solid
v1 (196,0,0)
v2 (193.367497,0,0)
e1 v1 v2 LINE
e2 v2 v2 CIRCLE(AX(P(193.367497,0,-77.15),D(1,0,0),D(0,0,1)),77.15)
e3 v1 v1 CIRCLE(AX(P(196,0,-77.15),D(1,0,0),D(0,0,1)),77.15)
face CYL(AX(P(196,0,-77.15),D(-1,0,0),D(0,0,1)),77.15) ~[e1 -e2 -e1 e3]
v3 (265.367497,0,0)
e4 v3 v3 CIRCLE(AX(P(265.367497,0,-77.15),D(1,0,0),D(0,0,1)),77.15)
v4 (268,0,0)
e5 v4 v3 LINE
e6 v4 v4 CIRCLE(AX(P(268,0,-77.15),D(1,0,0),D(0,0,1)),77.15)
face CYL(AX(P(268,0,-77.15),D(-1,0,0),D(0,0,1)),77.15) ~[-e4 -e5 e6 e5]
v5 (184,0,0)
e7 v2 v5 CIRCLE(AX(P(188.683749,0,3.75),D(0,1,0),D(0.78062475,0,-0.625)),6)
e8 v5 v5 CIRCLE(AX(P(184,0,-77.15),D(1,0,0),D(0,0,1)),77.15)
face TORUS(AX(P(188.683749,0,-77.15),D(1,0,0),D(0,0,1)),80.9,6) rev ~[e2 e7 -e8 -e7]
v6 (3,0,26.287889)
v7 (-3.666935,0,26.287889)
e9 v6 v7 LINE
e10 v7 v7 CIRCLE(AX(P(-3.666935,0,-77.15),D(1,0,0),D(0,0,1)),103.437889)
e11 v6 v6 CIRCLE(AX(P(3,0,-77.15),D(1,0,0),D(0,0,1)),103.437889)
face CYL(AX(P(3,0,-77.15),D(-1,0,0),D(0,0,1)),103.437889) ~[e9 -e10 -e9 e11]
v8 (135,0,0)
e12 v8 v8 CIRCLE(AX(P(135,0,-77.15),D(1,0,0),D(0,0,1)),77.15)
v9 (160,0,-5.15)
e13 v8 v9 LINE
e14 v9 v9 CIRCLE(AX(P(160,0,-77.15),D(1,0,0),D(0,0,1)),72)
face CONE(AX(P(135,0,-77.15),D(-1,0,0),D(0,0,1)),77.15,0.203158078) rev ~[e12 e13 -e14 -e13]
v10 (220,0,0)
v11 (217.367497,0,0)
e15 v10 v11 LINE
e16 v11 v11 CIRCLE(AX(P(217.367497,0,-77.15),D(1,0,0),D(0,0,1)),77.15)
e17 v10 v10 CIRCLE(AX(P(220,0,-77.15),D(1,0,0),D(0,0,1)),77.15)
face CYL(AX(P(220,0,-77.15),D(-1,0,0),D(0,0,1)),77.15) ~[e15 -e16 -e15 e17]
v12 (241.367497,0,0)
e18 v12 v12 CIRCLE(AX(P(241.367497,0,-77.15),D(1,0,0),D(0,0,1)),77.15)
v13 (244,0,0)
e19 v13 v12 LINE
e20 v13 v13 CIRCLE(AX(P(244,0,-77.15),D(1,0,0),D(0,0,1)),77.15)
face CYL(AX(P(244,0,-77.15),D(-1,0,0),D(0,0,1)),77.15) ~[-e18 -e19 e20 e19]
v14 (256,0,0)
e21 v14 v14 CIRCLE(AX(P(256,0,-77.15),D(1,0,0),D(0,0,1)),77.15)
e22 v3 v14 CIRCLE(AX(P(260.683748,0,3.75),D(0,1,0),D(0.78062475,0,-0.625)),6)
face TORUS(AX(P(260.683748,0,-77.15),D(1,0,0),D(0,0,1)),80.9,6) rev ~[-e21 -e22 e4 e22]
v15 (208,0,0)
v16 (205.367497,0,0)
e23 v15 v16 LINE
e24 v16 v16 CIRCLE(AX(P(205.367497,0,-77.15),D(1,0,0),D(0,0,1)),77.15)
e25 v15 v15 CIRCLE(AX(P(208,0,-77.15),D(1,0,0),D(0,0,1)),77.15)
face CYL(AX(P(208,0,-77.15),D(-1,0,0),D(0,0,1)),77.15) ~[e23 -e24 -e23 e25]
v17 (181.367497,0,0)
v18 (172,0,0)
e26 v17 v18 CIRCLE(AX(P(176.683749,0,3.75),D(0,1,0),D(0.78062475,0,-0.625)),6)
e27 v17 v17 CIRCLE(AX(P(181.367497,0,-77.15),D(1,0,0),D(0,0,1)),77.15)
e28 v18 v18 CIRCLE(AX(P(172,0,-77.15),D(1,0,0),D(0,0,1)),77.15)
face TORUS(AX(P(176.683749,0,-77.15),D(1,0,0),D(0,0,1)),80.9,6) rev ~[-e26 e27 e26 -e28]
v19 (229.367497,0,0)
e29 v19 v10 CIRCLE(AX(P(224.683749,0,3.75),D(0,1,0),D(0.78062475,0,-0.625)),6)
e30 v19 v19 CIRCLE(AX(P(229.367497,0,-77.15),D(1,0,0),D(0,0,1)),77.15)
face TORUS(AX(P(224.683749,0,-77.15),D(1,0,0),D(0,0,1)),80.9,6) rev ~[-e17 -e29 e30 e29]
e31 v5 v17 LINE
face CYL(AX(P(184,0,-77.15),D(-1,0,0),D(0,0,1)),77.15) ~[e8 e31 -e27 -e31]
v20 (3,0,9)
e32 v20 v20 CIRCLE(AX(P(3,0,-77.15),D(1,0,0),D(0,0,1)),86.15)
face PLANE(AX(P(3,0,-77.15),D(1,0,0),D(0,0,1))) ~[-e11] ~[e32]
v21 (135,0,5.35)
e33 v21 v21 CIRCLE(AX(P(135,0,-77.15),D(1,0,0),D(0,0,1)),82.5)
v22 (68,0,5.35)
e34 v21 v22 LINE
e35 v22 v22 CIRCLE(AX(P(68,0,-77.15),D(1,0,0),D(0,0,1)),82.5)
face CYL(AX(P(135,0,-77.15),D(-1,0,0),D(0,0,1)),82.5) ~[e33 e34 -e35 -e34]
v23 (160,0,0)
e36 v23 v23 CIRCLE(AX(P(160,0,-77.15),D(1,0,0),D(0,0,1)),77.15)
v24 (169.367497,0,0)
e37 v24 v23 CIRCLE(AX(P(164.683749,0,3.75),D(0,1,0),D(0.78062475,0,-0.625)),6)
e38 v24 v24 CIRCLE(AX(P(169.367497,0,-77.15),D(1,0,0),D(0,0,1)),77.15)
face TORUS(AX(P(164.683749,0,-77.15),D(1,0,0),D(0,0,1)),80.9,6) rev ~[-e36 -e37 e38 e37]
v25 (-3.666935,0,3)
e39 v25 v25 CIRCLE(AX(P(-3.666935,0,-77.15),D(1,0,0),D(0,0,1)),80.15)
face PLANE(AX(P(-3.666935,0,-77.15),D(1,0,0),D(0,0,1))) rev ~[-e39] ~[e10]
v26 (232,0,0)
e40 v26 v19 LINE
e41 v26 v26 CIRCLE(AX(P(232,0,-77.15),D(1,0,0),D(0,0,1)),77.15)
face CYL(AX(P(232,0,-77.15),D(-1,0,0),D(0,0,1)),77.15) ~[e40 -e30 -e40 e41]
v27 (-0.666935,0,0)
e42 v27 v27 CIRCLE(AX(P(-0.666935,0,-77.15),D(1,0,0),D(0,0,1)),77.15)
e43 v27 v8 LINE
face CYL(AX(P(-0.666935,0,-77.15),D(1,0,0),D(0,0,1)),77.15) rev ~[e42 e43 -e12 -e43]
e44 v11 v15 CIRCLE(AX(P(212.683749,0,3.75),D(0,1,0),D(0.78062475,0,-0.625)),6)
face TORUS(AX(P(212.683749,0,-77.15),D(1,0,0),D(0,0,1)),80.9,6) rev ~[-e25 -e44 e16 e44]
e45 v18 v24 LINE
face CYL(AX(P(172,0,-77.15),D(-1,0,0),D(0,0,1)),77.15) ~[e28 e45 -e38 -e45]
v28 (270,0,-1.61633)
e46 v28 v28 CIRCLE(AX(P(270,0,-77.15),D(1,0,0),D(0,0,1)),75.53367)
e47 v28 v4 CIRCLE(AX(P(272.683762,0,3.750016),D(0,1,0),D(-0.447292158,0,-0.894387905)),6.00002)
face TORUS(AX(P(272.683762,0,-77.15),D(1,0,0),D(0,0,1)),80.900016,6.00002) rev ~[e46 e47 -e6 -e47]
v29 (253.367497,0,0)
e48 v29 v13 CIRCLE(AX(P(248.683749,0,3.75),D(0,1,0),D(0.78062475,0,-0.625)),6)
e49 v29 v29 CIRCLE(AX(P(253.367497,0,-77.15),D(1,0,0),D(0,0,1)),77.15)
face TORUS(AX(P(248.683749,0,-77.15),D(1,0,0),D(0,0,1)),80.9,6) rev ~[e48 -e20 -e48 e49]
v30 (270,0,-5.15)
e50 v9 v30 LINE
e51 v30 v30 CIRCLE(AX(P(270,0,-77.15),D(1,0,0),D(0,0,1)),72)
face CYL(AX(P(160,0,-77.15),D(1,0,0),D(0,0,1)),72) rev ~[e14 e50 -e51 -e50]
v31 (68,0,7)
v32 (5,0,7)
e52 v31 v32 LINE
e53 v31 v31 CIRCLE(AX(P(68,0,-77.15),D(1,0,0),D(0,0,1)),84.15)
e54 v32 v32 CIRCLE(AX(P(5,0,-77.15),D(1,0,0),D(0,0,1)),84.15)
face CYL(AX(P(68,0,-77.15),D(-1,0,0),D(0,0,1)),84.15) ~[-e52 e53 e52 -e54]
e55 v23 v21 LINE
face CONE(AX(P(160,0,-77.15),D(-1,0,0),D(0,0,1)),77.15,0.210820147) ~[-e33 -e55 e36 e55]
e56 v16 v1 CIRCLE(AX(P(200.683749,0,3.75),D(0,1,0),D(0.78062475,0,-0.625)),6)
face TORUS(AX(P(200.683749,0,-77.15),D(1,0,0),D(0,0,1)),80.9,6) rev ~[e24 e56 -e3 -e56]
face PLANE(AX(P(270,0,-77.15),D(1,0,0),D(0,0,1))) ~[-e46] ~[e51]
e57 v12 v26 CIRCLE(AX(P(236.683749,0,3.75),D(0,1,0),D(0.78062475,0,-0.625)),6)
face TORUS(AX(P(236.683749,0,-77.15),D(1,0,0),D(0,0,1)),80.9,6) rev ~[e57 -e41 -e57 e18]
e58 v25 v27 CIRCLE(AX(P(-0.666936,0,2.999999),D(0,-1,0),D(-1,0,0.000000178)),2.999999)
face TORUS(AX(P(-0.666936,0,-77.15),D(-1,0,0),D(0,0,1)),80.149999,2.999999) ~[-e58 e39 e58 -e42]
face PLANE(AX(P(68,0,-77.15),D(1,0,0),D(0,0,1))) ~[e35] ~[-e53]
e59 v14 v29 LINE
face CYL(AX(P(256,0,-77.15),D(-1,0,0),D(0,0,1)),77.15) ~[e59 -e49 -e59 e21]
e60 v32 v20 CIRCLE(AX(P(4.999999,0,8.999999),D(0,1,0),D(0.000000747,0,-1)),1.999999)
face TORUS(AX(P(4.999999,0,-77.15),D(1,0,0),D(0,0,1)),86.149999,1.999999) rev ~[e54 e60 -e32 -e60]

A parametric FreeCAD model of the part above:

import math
import FreeCAD as App
import Part
import Sketcher
Q = App.Units.Quantity

doc = App.newDocument("Part")
body = doc.addObject("PartDesign::Body", "Body")

# Sketch on XZ plane
sketch1 = doc.addObject("Sketcher::SketchObject", "Sketch")
body.addObject(sketch1)
sketch1.AttachmentSupport = (doc.XZ_Plane, [""])
sketch1.MapMode = "FlatFace"
sketch1.addGeometry([
    Part.LineSegment(App.Vector(-0.7, 0, 0), App.Vector(135, 0, 0)),  # 0
    Part.LineSegment(App.Vector(135, 0, 0), App.Vector(160, -5.2, 0)),  # 1
    Part.LineSegment(App.Vector(160, -5.2, 0), App.Vector(270, -5.2, 0)),  # 2
    Part.LineSegment(App.Vector(270, -5.2, 0), App.Vector(270, -1.6, 0)),  # 3
    Part.ArcOfCircle(Part.Circle(App.Vector(272.7, 3.8, 0), App.Vector(0, 0, 1), 6), math.radians(-141), math.radians(-117)),  # 4
    Part.LineSegment(App.Vector(268, 0, 0), App.Vector(265.4, 0, 0)),  # 5
    Part.ArcOfCircle(Part.Circle(App.Vector(260.7, 3.8, 0), App.Vector(0, 0, 1), 6), math.radians(-141), math.radians(-39)),  # 6
    Part.LineSegment(App.Vector(256, 0, 0), App.Vector(253.4, 0, 0)),  # 7
    Part.ArcOfCircle(Part.Circle(App.Vector(248.7, 3.8, 0), App.Vector(0, 0, 1), 6), math.radians(-141), math.radians(-39)),  # 8
    Part.LineSegment(App.Vector(244, 0, 0), App.Vector(241.4, 0, 0)),  # 9
    Part.ArcOfCircle(Part.Circle(App.Vector(236.7, 3.8, 0), App.Vector(0, 0, 1), 6), math.radians(-141), math.radians(-39)),  # 10
    Part.LineSegment(App.Vector(232, 0, 0), App.Vector(229.4, 0, 0)),  # 11
    Part.ArcOfCircle(Part.Circle(App.Vector(224.7, 3.8, 0), App.Vector(0, 0, 1), 6), math.radians(-141), math.radians(-39)),  # 12
    Part.LineSegment(App.Vector(220, 0, 0), App.Vector(217.4, 0, 0)),  # 13
    Part.ArcOfCircle(Part.Circle(App.Vector(212.7, 3.8, 0), App.Vector(0, 0, 1), 6), math.radians(-141), math.radians(-39)),  # 14
    Part.LineSegment(App.Vector(208, 0, 0), App.Vector(205.4, 0, 0)),  # 15
    Part.ArcOfCircle(Part.Circle(App.Vector(200.7, 3.8, 0), App.Vector(0, 0, 1), 6), math.radians(-141), math.radians(-39)),  # 16
    Part.LineSegment(App.Vector(196, 0, 0), App.Vector(193.4, 0, 0)),  # 17
    Part.ArcOfCircle(Part.Circle(App.Vector(188.7, 3.8, 0), App.Vector(0, 0, 1), 6), math.radians(-141), math.radians(-39)),  # 18
    Part.LineSegment(App.Vector(184, 0, 0), App.Vector(181.4, 0, 0)),  # 19
    Part.ArcOfCircle(Part.Circle(App.Vector(176.7, 3.8, 0), App.Vector(0, 0, 1), 6), math.radians(-141), math.radians(-39)),  # 20
    Part.LineSegment(App.Vector(172, 0, 0), App.Vector(169.4, 0, 0)),  # 21
    Part.ArcOfCircle(Part.Circle(App.Vector(164.7, 3.8, 0), App.Vector(0, 0, 1), 6), math.radians(-141), math.radians(-39)),  # 22
    Part.LineSegment(App.Vector(160, 0, 0), App.Vector(135, 5.3, 0)),  # 23
    Part.LineSegment(App.Vector(135, 5.3, 0), App.Vector(68, 5.3, 0)),  # 24
    Part.LineSegment(App.Vector(68, 5.3, 0), App.Vector(68, 7, 0)),  # 25
    Part.LineSegment(App.Vector(68, 7, 0), App.Vector(5, 7, 0)),  # 26
    Part.ArcOfCircle(Part.Circle(App.Vector(5, 9, 0), App.Vector(0, 0, 1), 2), math.radians(180), math.radians(270)),  # 27
    Part.LineSegment(App.Vector(3, 9, 0), App.Vector(3, 26.3, 0)),  # 28
    Part.LineSegment(App.Vector(3, 26.3, 0), App.Vector(-3.7, 26.3, 0)),  # 29
    Part.LineSegment(App.Vector(-3.7, 26.3, 0), App.Vector(-3.7, 3, 0)),  # 30
    Part.ArcOfCircle(Part.Circle(App.Vector(-0.7, 3, 0), App.Vector(0, 0, 1), 3), math.radians(180), math.radians(270)),  # 31
], False)
sketch1.addGeometry(Part.LineSegment(App.Vector(-3.7, -77.2, 0), App.Vector(272.7, -77.2, 0)), True)  # axis
sketch1.addConstraint([
    Sketcher.Constraint("Coincident", 0, 2, 1, 1),
    Sketcher.Constraint("Coincident", 1, 2, 2, 1),
    Sketcher.Constraint("Coincident", 2, 2, 3, 1),
    Sketcher.Constraint("Coincident", 3, 2, 4, 2),
    Sketcher.Constraint("Coincident", 4, 1, 5, 1),
    Sketcher.Constraint("Coincident", 5, 2, 6, 2),
    Sketcher.Constraint("Coincident", 6, 1, 7, 1),
    Sketcher.Constraint("Coincident", 7, 2, 8, 2),
    Sketcher.Constraint("Coincident", 8, 1, 9, 1),
    Sketcher.Constraint("Coincident", 9, 2, 10, 2),
    Sketcher.Constraint("Coincident", 10, 1, 11, 1),
    Sketcher.Constraint("Coincident", 11, 2, 12, 2),
    Sketcher.Constraint("Coincident", 12, 1, 13, 1),
    Sketcher.Constraint("Coincident", 13, 2, 14, 2),
    Sketcher.Constraint("Coincident", 14, 1, 15, 1),
    Sketcher.Constraint("Coincident", 15, 2, 16, 2),
    Sketcher.Constraint("Coincident", 16, 1, 17, 1),
    Sketcher.Constraint("Coincident", 17, 2, 18, 2),
    Sketcher.Constraint("Coincident", 18, 1, 19, 1),
    Sketcher.Constraint("Coincident", 19, 2, 20, 2),
    Sketcher.Constraint("Coincident", 20, 1, 21, 1),
    Sketcher.Constraint("Coincident", 21, 2, 22, 2),
    Sketcher.Constraint("Coincident", 22, 1, 23, 1),
    Sketcher.Constraint("Coincident", 23, 2, 24, 1),
    Sketcher.Constraint("Coincident", 24, 2, 25, 1),
    Sketcher.Constraint("Coincident", 25, 2, 26, 1),
    Sketcher.Constraint("Tangent", 26, 2, 27, 2),
    Sketcher.Constraint("Tangent", 27, 1, 28, 1),
    Sketcher.Constraint("Coincident", 28, 2, 29, 1),
    Sketcher.Constraint("Coincident", 29, 2, 30, 1),
    Sketcher.Constraint("Tangent", 30, 2, 31, 1),
    Sketcher.Constraint("Tangent", 31, 2, 0, 1),
    Sketcher.Constraint("Horizontal", 0),
    Sketcher.Constraint("Horizontal", 2),
    Sketcher.Constraint("Vertical", 3),
    Sketcher.Constraint("Horizontal", 5),
    Sketcher.Constraint("Horizontal", 7),
    Sketcher.Constraint("Horizontal", 9),
    Sketcher.Constraint("Horizontal", 11),
    Sketcher.Constraint("Horizontal", 13),
    Sketcher.Constraint("Horizontal", 15),
    Sketcher.Constraint("Horizontal", 17),
    Sketcher.Constraint("Horizontal", 19),
    Sketcher.Constraint("Horizontal", 21),
    Sketcher.Constraint("Horizontal", 24),
    Sketcher.Constraint("Vertical", 25),
    Sketcher.Constraint("Horizontal", 26),
    Sketcher.Constraint("Vertical", 28),
    Sketcher.Constraint("Horizontal", 29),
    Sketcher.Constraint("Vertical", 30),
    Sketcher.Constraint("Horizontal", 32),
    Sketcher.Constraint("Equal", 6, 8),
    Sketcher.Constraint("Equal", 8, 10),
    Sketcher.Constraint("Equal", 10, 12),
    Sketcher.Constraint("Equal", 12, 14),
    Sketcher.Constraint("Equal", 14, 16),
    Sketcher.Constraint("Equal", 16, 18),
    Sketcher.Constraint("Equal", 18, 20),
    Sketcher.Constraint("Equal", 20, 22),
    Sketcher.Constraint("PointOnObject", 0, 2, -1),
    Sketcher.Constraint("PointOnObject", 4, 1, -1),
    Sketcher.Constraint("PointOnObject", 6, 1, -1),
    Sketcher.Constraint("PointOnObject", 8, 1, -1),
    Sketcher.Constraint("PointOnObject", 10, 1, -1),
    Sketcher.Constraint("PointOnObject", 12, 1, -1),
    Sketcher.Constraint("PointOnObject", 14, 1, -1),
    Sketcher.Constraint("PointOnObject", 16, 1, -1),
    Sketcher.Constraint("PointOnObject", 18, 1, -1),
    Sketcher.Constraint("PointOnObject", 20, 1, -1),
    Sketcher.Constraint("PointOnObject", 22, 1, -1),
    Sketcher.Constraint("Horizontal", 6, 3, 8, 3),
    Sketcher.Constraint("Horizontal", 8, 3, 10, 3),
    Sketcher.Constraint("Horizontal", 10, 3, 12, 3),
    Sketcher.Constraint("Horizontal", 12, 3, 14, 3),
    Sketcher.Constraint("Horizontal", 14, 3, 16, 3),
    Sketcher.Constraint("Horizontal", 16, 3, 18, 3),
    Sketcher.Constraint("Horizontal", 18, 3, 20, 3),
    Sketcher.Constraint("Horizontal", 20, 3, 22, 3),
    Sketcher.Constraint("Vertical", 1, 2, 22, 1),
    Sketcher.Constraint("Vertical", 0, 2, 23, 2),
    Sketcher.Constraint("Vertical", 30, 2, 32, 1),
    Sketcher.Constraint("Vertical", 4, 3, 32, 2),
    Sketcher.Constraint("Equal", 5, 7),
    Sketcher.Constraint("Equal", 7, 9),
    Sketcher.Constraint("Equal", 9, 11),
    Sketcher.Constraint("Equal", 11, 13),
    Sketcher.Constraint("Equal", 13, 15),
    Sketcher.Constraint("Equal", 15, 17),
    Sketcher.Constraint("Equal", 17, 19),
    Sketcher.Constraint("Equal", 19, 21),
    Sketcher.Constraint("Radius", 6, Q("6 mm")),
    Sketcher.Constraint("Radius", 27, Q("1.999999 mm")),
    Sketcher.Constraint("Radius", 31, Q("2.999999 mm")),
    Sketcher.Constraint("DistanceX", 2, 1, 2, 2, Q("110 mm")),
    Sketcher.Constraint("DistanceX", 24, 2, 24, 1, Q("67 mm")),
    Sketcher.Constraint("DistanceX", 26, 2, 26, 1, Q("63 mm")),
    Sketcher.Constraint("DistanceX", -1, 1, 27, 3, Q("4.999999 mm")),
    Sketcher.Constraint("DistanceY", -1, 1, 27, 3, Q("8.999999 mm")),
    Sketcher.Constraint("DistanceX", -1, 1, 1, 2, Q("160 mm")),
    Sketcher.Constraint("DistanceX", -1, 1, 4, 1, Q("268 mm")),
    Sketcher.Constraint("DistanceY", 32, 2, 2, 2, Q("72 mm")),
    Sketcher.Constraint("DistanceY", 25, 1, 25, 2, Q("1.65 mm")),
    Sketcher.Constraint("DistanceY", 1, 2, 22, 3, Q("8.9 mm")),
    Sketcher.Constraint("DistanceY", 1, 2, 23, 2, Q("10.5 mm")),
    Sketcher.Constraint("Radius", 4, Q("6.00002 mm")),
    Sketcher.Constraint("DistanceY", 3, 1, 3, 2, Q("3.53367 mm")),
    Sketcher.Constraint("DistanceY", 28, 1, 28, 2, Q("17.287889 mm")),
    Sketcher.Constraint("DistanceX", 0, 1, 0, 2, Q("135.666935 mm")),
])
revolution = doc.addObject("PartDesign::Revolution", "Revolution")
body.addObject(revolution)
revolution.Profile = sketch1
revolution.ReferenceAxis = (sketch1, ["Axis0"])
revolution.Angle = 360

doc.recompute()
